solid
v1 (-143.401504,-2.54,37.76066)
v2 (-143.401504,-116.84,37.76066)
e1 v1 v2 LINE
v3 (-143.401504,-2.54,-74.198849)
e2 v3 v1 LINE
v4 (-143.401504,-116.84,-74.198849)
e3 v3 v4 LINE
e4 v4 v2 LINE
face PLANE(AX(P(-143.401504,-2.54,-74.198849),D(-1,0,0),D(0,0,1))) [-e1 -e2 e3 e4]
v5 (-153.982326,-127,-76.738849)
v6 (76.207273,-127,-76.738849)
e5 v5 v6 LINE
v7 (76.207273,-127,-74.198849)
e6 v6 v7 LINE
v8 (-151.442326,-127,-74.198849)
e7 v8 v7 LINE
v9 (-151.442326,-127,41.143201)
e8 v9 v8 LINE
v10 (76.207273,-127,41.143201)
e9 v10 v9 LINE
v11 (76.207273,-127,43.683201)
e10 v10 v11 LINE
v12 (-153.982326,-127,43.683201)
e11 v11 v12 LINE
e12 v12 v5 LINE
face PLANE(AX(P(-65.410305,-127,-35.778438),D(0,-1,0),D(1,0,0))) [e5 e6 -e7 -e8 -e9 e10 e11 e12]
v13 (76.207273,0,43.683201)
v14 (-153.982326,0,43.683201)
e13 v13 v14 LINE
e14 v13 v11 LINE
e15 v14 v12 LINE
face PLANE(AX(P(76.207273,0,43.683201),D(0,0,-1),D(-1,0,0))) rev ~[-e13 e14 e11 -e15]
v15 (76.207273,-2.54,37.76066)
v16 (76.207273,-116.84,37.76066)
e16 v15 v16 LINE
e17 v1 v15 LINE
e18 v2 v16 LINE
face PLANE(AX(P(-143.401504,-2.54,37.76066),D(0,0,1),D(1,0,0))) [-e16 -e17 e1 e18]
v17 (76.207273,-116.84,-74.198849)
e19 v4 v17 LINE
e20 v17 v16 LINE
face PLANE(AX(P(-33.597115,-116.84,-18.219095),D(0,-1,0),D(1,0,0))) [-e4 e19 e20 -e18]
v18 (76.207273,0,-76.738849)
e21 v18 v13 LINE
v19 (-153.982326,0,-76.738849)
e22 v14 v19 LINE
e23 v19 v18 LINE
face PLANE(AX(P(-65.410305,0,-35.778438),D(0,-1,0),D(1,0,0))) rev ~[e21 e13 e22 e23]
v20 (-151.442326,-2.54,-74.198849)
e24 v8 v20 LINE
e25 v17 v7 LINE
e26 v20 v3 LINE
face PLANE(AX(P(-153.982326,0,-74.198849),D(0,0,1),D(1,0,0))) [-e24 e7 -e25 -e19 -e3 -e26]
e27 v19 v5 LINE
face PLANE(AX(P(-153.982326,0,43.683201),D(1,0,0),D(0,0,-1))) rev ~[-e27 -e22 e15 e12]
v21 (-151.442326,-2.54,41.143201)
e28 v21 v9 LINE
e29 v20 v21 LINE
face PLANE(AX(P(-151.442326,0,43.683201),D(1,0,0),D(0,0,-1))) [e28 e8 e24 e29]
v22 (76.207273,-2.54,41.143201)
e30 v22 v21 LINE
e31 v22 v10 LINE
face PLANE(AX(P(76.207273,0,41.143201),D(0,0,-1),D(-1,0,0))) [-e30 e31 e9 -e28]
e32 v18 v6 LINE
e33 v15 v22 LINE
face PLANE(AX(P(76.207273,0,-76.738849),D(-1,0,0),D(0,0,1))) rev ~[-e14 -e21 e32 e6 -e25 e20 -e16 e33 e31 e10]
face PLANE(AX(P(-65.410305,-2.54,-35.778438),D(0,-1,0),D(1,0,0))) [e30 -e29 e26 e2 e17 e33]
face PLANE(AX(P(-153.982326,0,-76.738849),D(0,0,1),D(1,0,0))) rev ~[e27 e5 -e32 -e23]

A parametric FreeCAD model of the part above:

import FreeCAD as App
import Part
import Sketcher

V = App.Vector
Q = App.Units.Quantity


def faces_at(feature, points):
    """Names of the faces that lie closest to the given points."""
    faces = feature.Shape.Faces
    near = lambda p: min(range(len(faces)), key=lambda i: faces[i].distToShape(Part.Vertex(*p))[0])
    return sorted({f"Face{near(p) + 1}" for p in points})

doc = App.newDocument("Part")
body = doc.addObject("PartDesign::Body", "Body")

sketch1 = doc.addObject("Sketcher::SketchObject", "Sketch")
body.addObject(sketch1)
sketch1.AttachmentSupport = (doc.XZ_Plane, [""])
sketch1.MapMode = "FlatFace"
sketch1.addGeometry([
    Part.LineSegment(V(-153.982326, 43.683201, 0), V(-153.982326, -76.738849, 0)),
    Part.LineSegment(V(-153.982326, -76.738849, 0), V(76.207273, -76.738849, 0)),
    Part.LineSegment(V(76.207273, -76.738849, 0), V(76.207273, 43.683201, 0)),
    Part.LineSegment(V(76.207273, 43.683201, 0), V(-153.982326, 43.683201, 0)),
], False)
sketch1.addConstraint([
    Sketcher.Constraint("Coincident", 0, 2, 1, 1),
    Sketcher.Constraint("Coincident", 1, 2, 2, 1),
    Sketcher.Constraint("Coincident", 2, 2, 3, 1),
    Sketcher.Constraint("Coincident", 3, 2, 0, 1),
    Sketcher.Constraint("Vertical", 0),
    Sketcher.Constraint("Horizontal", 1),
    Sketcher.Constraint("Vertical", 2),
    Sketcher.Constraint("Horizontal", 3),
    Sketcher.Constraint("DistanceX", 1, 1, 1, 2, Q("230.189599 mm")),
    Sketcher.Constraint("DistanceY", 0, 2, 0, 1, Q("120.42205 mm")),
    Sketcher.Constraint("DistanceY", -1, 1, 2, 2, Q("43.683201 mm")),
    Sketcher.Constraint("DistanceX", 0, 2, -1, 1, Q("153.982326 mm")),
])
pad1 = doc.addObject("PartDesign::Pad", "Pad")
body.addObject(pad1)
pad1.Profile = sketch1
pad1.Length = Q("5 in")
doc.recompute()

thickness = doc.addObject("PartDesign::Thickness", "Thickness")
body.addObject(thickness)
thickness.Base = (pad1, faces_at(pad1, [(-38.888, -127, -16.528), (76.207, -63.5, -16.528)]))
thickness.Value = Q("0.1 in")
thickness.Reversed = True
thickness.Join = "Arc"

sketch2 = doc.addObject("Sketcher::SketchObject", "Sketch001")
body.addObject(sketch2)
sketch2.AttachmentSupport = (doc.XZ_Plane, [""])
sketch2.MapMode = "FlatFace"
sketch2.AttachmentOffset = App.Placement(V(0, 0, 0.1 * 25.4), App.Rotation())
sketch2.addGeometry([
    Part.LineSegment(V(-143.401504, 37.76066, 0), V(-143.401504, -74.198849, 0)),
    Part.LineSegment(V(-143.401504, -74.198849, 0), V(76.207273, -74.198849, 0)),
    Part.LineSegment(V(76.207273, -74.198849, 0), V(76.207273, 37.76066, 0)),
    Part.LineSegment(V(76.207273, 37.76066, 0), V(-143.401504, 37.76066, 0)),
], False)
sketch2.addConstraint([
    Sketcher.Constraint("Coincident", 0, 2, 1, 1),
    Sketcher.Constraint("Coincident", 1, 2, 2, 1),
    Sketcher.Constraint("Coincident", 2, 2, 3, 1),
    Sketcher.Constraint("Coincident", 3, 2, 0, 1),
    Sketcher.Constraint("Vertical", 0),
    Sketcher.Constraint("Horizontal", 1),
    Sketcher.Constraint("Vertical", 2),
    Sketcher.Constraint("Horizontal", 3),
    Sketcher.Constraint("DistanceY", 0, 2, 0, 1, Q("111.959509 mm")),
    Sketcher.Constraint("DistanceX", 1, 1, 1, 2, Q("219.608776 mm")),
    Sketcher.Constraint("DistanceY", 0, 2, -1, 1, Q("74.198849 mm")),
    Sketcher.Constraint("DistanceX", 0, 2, -1, 1, Q("143.401504 mm")),
])
pad2 = doc.addObject("PartDesign::Pad", "Pad001")
body.addObject(pad2)
pad2.Profile = sketch2
pad2.Length = Q("4.5 in")

doc.recompute()
